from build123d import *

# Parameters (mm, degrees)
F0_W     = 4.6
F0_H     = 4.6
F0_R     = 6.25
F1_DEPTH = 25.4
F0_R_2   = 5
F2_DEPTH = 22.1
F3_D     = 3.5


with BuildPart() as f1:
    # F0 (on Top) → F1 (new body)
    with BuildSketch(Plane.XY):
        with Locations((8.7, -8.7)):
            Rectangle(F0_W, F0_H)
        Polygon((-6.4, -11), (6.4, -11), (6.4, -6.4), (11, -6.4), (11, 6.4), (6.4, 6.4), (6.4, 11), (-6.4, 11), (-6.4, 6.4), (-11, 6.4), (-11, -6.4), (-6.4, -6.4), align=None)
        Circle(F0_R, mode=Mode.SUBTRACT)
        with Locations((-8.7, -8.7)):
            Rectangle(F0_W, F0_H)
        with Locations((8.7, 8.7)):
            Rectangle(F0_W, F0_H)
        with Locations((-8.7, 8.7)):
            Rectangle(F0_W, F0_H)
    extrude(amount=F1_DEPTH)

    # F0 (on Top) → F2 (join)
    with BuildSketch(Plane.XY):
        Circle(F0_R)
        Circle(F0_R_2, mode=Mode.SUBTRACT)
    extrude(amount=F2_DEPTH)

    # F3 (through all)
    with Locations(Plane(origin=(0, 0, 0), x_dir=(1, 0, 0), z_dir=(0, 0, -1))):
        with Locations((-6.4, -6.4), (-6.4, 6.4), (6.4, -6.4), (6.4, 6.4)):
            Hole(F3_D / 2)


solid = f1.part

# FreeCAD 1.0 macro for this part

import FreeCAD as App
import Part
import Sketcher

doc = App.newDocument("Part")
params = doc.addObject("Spreadsheet::Sheet", "Params")
for row, (alias, value) in enumerate([
    ("sketch1_diameter", "12.5 mm"),
    ("sketch1_width", "22 mm"),
    ("pad1_length", "25.4 mm"),
    ("sketch2_diameter", "10 mm"),
    ("sketch2_diameter2", "12.5 mm"),
    ("pad2_length", "22.1 mm"),
    ("sketch3_diameter", "3.5 mm"),
    ("hole_diameter", "3.5 mm"),
], start=1):
    params.set(f"A{row}", alias)
    params.set(f"B{row}", "=" + value)
    params.setAlias(f"B{row}", alias)

body = doc.addObject("PartDesign::Body", "Body")

sketch1 = doc.addObject("Sketcher::SketchObject", "Sketch")
body.addObject(sketch1)
sketch1.AttachmentSupport = (doc.XY_Plane, [""])
sketch1.MapMode = "FlatFace"
sketch1.addGeometry([
    Part.LineSegment(App.Vector(11, -11, 0), App.Vector(11, 11, 0)),
    Part.LineSegment(App.Vector(11, 11, 0), App.Vector(-11, 11, 0)),
    Part.LineSegment(App.Vector(-11, 11, 0), App.Vector(-11, -11, 0)),
    Part.LineSegment(App.Vector(-11, -11, 0), App.Vector(11, -11, 0)),
    Part.Circle(App.Vector(0, 0, 0), App.Vector(0, 0, 1), 6),
], False)
sketch1.addConstraint([
    Sketcher.Constraint("Coincident", 0, 2, 1, 1),
    Sketcher.Constraint("Coincident", 1, 2, 2, 1),
    Sketcher.Constraint("Coincident", 2, 2, 3, 1),
    Sketcher.Constraint("Coincident", 3, 2, 0, 1),
    Sketcher.Constraint("Vertical", 0),
    Sketcher.Constraint("Horizontal", 1),
    Sketcher.Constraint("Vertical", 2),
    Sketcher.Constraint("Horizontal", 3),
    Sketcher.Constraint("Coincident", 4, 3, -1, 1),
    Sketcher.Constraint("Symmetric", 0, 2, 2, 2, -1, 1),
    Sketcher.Constraint("Equal", 3, 0),
    Sketcher.Constraint("Diameter", 4, 12.5),
    Sketcher.Constraint("DistanceX", 1, 2, 1, 1, 22.0),
])
sketch1.setExpression("Constraints[11]", "Params.sketch1_diameter")
sketch1.setExpression("Constraints[12]", "Params.sketch1_width")
pad1 = doc.addObject("PartDesign::Pad", "Pad")
body.addObject(pad1)
pad1.Profile = sketch1
pad1.setExpression("Length", "Params.pad1_length")

sketch2 = doc.addObject("Sketcher::SketchObject", "Sketch001")
body.addObject(sketch2)
sketch2.AttachmentSupport = (doc.XY_Plane, [""])
sketch2.MapMode = "FlatFace"
sketch2.addGeometry([
    Part.Circle(App.Vector(0, 0, 0), App.Vector(0, 0, 1), 6),
    Part.Circle(App.Vector(0, 0, 0), App.Vector(0, 0, 1), 5),
], False)
sketch2.addConstraint([
    Sketcher.Constraint("Coincident", 0, 3, -1, 1),
    Sketcher.Constraint("Coincident", 1, 3, -1, 1),
    Sketcher.Constraint("Diameter", 1, 10.0),
    Sketcher.Constraint("Diameter", 0, 12.5),
])
sketch2.setExpression("Constraints[2]", "Params.sketch2_diameter")
sketch2.setExpression("Constraints[3]", "Params.sketch2_diameter2")
pad2 = doc.addObject("PartDesign::Pad", "Pad001")
body.addObject(pad2)
pad2.Profile = sketch2
pad2.setExpression("Length", "Params.pad2_length")

sketch3 = doc.addObject("Sketcher::SketchObject", "Sketch002")
body.addObject(sketch3)
sketch3.AttachmentSupport = (doc.XY_Plane, [""])
sketch3.MapMode = "FlatFace"
sketch3.addGeometry([
    Part.Circle(App.Vector(-6.4, 6.4, 0), App.Vector(0, 0, 1), 1.8),
    Part.Circle(App.Vector(-6.4, -6.4, 0), App.Vector(0, 0, 1), 1.8),
    Part.Circle(App.Vector(6.4, 6.4, 0), App.Vector(0, 0, 1), 1.8),
    Part.Circle(App.Vector(6.4, -6.4, 0), App.Vector(0, 0, 1), 1.8),
], False)
sketch3.addConstraint([
    Sketcher.Constraint("Equal", 0, 1),
    Sketcher.Constraint("Equal", 1, 2),
    Sketcher.Constraint("Equal", 2, 3),
    Sketcher.Constraint("Symmetric", 1, 3, 2, 3, -1, 1),
    Sketcher.Constraint("Symmetric", 0, 3, 3, 3, -1, 1),
    Sketcher.Constraint("Symmetric", 0, 3, 2, 3, -2),
    Sketcher.Constraint("Diameter", 0, 3.5),
    Sketcher.Constraint("DistanceX", 0, 3, -1, 1, 6.4),
    Sketcher.Constraint("DistanceY", -1, 1, 0, 3, 6.4),
])
sketch3.setExpression("Constraints[6]", "Params.sketch3_diameter")
doc.recompute()
hole = doc.addObject("PartDesign::Hole", "Hole")
body.addObject(hole)
hole.Profile = sketch3
hole.ThreadType = "None"
hole.setExpression("Diameter", "Params.hole_diameter")
hole.DepthType = "ThroughAll"
hole.Reversed = True

doc.recompute()
